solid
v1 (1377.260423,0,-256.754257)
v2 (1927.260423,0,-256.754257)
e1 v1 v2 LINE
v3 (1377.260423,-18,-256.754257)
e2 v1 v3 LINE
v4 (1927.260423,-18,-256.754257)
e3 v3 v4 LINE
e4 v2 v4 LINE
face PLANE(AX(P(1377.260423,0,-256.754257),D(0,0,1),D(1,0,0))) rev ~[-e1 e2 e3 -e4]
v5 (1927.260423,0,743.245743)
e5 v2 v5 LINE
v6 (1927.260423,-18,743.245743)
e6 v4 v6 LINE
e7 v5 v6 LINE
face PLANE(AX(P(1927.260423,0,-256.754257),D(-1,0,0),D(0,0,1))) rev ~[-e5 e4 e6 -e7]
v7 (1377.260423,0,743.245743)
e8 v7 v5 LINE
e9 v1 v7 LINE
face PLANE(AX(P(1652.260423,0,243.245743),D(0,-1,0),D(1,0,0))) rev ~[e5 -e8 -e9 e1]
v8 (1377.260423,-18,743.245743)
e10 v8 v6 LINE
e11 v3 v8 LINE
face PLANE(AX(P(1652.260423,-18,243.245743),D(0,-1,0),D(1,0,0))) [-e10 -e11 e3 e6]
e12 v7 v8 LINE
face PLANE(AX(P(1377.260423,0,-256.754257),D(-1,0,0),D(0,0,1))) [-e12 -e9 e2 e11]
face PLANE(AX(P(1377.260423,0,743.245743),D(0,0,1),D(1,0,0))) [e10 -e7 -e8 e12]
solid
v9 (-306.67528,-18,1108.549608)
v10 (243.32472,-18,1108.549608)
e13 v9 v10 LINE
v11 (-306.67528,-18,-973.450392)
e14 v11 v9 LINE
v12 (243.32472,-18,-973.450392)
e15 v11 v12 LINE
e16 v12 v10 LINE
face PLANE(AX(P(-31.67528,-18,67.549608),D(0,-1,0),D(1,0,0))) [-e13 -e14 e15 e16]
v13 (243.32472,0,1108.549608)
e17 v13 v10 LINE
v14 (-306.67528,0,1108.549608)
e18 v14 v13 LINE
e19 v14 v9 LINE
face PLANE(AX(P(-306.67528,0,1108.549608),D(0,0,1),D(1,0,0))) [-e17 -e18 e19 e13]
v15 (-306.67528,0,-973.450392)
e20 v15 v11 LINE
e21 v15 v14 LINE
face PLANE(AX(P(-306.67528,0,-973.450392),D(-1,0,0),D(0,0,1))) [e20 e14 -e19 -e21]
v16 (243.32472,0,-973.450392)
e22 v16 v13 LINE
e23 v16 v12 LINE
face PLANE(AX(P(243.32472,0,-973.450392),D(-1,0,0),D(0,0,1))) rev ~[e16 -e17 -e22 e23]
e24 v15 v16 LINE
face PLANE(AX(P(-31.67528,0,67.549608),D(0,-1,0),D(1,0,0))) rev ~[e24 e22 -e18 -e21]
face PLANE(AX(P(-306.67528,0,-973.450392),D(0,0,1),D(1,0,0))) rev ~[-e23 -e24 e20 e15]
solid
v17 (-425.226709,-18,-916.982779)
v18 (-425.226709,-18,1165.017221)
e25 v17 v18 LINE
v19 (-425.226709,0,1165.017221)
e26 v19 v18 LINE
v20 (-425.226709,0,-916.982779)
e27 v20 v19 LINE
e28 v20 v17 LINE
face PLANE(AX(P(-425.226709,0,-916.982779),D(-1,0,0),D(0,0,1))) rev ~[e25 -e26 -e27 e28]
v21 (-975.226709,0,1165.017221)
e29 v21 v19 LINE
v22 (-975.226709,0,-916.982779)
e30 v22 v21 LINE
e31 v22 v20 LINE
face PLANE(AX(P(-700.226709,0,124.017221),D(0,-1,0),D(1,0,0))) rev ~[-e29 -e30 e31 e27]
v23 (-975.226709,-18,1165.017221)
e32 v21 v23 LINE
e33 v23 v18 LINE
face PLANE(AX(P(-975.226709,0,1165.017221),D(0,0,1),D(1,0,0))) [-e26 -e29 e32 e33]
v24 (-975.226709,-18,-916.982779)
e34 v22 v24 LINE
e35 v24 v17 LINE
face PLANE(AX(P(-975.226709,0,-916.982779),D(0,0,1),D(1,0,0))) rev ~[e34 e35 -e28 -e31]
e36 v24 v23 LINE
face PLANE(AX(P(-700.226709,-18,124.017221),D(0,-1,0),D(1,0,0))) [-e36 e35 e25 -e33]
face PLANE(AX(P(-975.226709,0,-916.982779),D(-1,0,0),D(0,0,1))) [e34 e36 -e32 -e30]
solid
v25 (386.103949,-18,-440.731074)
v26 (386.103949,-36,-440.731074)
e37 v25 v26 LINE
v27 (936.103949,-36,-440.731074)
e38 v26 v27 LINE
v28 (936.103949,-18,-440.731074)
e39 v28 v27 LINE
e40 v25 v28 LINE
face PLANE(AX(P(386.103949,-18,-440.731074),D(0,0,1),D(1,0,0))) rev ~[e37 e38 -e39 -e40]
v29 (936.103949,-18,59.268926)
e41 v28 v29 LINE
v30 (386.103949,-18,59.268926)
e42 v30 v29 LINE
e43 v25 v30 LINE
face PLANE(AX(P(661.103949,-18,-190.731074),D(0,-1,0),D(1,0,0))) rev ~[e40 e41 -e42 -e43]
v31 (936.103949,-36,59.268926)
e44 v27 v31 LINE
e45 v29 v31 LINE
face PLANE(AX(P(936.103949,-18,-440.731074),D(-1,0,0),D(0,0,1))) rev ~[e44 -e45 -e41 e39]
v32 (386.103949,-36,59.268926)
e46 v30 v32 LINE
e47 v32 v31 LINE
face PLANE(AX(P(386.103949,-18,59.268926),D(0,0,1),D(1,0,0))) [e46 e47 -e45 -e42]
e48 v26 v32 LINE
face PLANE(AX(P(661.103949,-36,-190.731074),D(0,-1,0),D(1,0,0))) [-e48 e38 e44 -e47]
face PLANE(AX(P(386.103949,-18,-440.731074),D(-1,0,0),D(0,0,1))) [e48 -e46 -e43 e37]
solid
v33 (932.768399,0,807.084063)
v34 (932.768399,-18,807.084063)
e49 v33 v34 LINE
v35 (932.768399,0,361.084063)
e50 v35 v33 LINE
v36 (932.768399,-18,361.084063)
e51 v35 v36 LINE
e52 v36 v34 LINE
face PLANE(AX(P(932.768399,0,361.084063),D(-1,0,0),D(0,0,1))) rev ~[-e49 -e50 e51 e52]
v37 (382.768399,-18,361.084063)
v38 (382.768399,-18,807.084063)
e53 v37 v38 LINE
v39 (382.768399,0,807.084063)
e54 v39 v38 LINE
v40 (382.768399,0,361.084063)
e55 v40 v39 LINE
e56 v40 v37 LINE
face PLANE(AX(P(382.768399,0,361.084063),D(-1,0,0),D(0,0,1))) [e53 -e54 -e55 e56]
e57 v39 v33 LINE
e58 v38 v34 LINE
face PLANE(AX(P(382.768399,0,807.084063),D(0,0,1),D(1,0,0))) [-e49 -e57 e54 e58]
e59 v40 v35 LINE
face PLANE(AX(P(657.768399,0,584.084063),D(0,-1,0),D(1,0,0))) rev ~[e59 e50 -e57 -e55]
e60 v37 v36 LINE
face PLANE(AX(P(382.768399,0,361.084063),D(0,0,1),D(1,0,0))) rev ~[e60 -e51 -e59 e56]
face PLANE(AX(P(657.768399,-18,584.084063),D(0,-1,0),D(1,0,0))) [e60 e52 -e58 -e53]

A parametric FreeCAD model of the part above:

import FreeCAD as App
import Part
import Sketcher
from FreeCAD import Vector


def add_polygon(sketch, points):
    """Adds a closed chain of lines whose ends are joined by coincident constraints."""
    first, n = sketch.GeometryCount, len(points)
    for a, b in zip(points, points[1:] + points[:1]):
        sketch.addGeometry(Part.LineSegment(App.Vector(*a, 0), App.Vector(*b, 0)), False)
    for i in range(n):
        sketch.addConstraint(Sketcher.Constraint("Coincident", first + i, 2, first + (i + 1) % n, 1))

doc = App.newDocument("Part")
body = doc.addObject("PartDesign::Body", "Body")

# Sketch on XZ plane
sketch1 = body.newObject("Sketcher::SketchObject", "Sketch")
sketch1.AttachmentSupport = (doc.getObject("XZ_Plane"), [""])
sketch1.MapMode = "FlatFace"
add_polygon(sketch1, [(-306.67528, 1108.549608), (-306.67528, -973.450392), (243.32472, -973.450392), (243.32472, 1108.549608)])  # lines 0-3
sketch1.addConstraint([
    Sketcher.Constraint("Vertical", 0),
    Sketcher.Constraint("Horizontal", 1),
    Sketcher.Constraint("Vertical", 2),
    Sketcher.Constraint("Horizontal", 3),
    Sketcher.Constraint("DistanceX", 1, 1, 1, 2, 550.0),
    Sketcher.Constraint("DistanceY", 0, 2, 0, 1, 2082.0),
    Sketcher.Constraint("DistanceX", 0, 2, -1, 1, 306.67528),
    Sketcher.Constraint("DistanceY", 0, 2, -1, 1, 973.450392),
])
pad1 = body.newObject("PartDesign::Pad", "Pad")
pad1.Profile = sketch1
pad1.Length = 18
body2 = doc.addObject("PartDesign::Body", "Body001")

# Sketch on XZ plane
sketch2 = body2.newObject("Sketcher::SketchObject", "Sketch001")
sketch2.AttachmentSupport = (doc.getObject("XZ_Plane001"), [""])
sketch2.MapMode = "FlatFace"
add_polygon(sketch2, [(-975.226709, 1165.017221), (-975.226709, -916.982779), (-425.226709, -916.982779), (-425.226709, 1165.017221)])  # lines 0-3
sketch2.addConstraint([
    Sketcher.Constraint("Vertical", 0),
    Sketcher.Constraint("Horizontal", 1),
    Sketcher.Constraint("Vertical", 2),
    Sketcher.Constraint("Horizontal", 3),
    Sketcher.Constraint("DistanceX", 1, 1, 1, 2, 550.0),
    Sketcher.Constraint("DistanceY", 0, 2, 0, 1, 2082.0),
    Sketcher.Constraint("DistanceX", 0, 2, -1, 1, 975.226709),
    Sketcher.Constraint("DistanceY", 0, 2, -1, 1, 916.982779),
])
pad2 = body2.newObject("PartDesign::Pad", "Pad001")
pad2.Profile = sketch2
pad2.Length = 18
body3 = doc.addObject("PartDesign::Body", "Body002")

# Sketch on XZ plane
sketch3 = body3.newObject("Sketcher::SketchObject", "Sketch002")
sketch3.AttachmentSupport = (doc.getObject("XZ_Plane002"), [""])
sketch3.MapMode = "FlatFace"
add_polygon(sketch3, [(382.768399, 807.084063), (382.768399, 361.084063), (932.768399, 361.084063), (932.768399, 807.084063)])  # lines 0-3
sketch3.addConstraint([
    Sketcher.Constraint("Vertical", 0),
    Sketcher.Constraint("Horizontal", 1),
    Sketcher.Constraint("Vertical", 2),
    Sketcher.Constraint("Horizontal", 3),
    Sketcher.Constraint("DistanceX", 1, 1, 1, 2, 550.0),
    Sketcher.Constraint("DistanceY", 0, 2, 0, 1, 446.0),
    Sketcher.Constraint("DistanceX", -1, 1, 0, 2, 382.768399),
    Sketcher.Constraint("DistanceY", -1, 1, 0, 2, 361.084063),
])
pad3 = body3.newObject("PartDesign::Pad", "Pad002")
pad3.Profile = sketch3
pad3.Length = 18
body4 = doc.addObject("PartDesign::Body", "Body003")

# Sketch on XZ plane
sketch4 = body4.newObject("Sketcher::SketchObject", "Sketch003")
sketch4.AttachmentSupport = (doc.getObject("XZ_Plane003"), [""])
sketch4.MapMode = "FlatFace"
sketch4.AttachmentOffset = App.Placement(Vector(0, 0, 18), App.Rotation())
add_polygon(sketch4, [(386.103949, 59.268926), (386.103949, -440.731074), (936.103949, -440.731074), (936.103949, 59.268926)])  # lines 0-3
sketch4.addConstraint([
    Sketcher.Constraint("Vertical", 0),
    Sketcher.Constraint("Horizontal", 1),
    Sketcher.Constraint("Vertical", 2),
    Sketcher.Constraint("Horizontal", 3),
    Sketcher.Constraint("DistanceX", 1, 1, 1, 2, 550.0),
    Sketcher.Constraint("DistanceY", 0, 2, 0, 1, 500.0),
    Sketcher.Constraint("DistanceX", -1, 1, 0, 2, 386.103949),
    Sketcher.Constraint("DistanceY", 0, 2, -1, 1, 440.731074),
])
pad4 = body4.newObject("PartDesign::Pad", "Pad003")
pad4.Profile = sketch4
pad4.Length = 18
body5 = doc.addObject("PartDesign::Body", "Body004")

# Sketch on XZ plane
sketch5 = body5.newObject("Sketcher::SketchObject", "Sketch004")
sketch5.AttachmentSupport = (doc.getObject("XZ_Plane004"), [""])
sketch5.MapMode = "FlatFace"
add_polygon(sketch5, [(1377.260423, 743.245743), (1377.260423, -256.754257), (1927.260423, -256.754257), (1927.260423, 743.245743)])  # lines 0-3
sketch5.addConstraint([
    Sketcher.Constraint("Vertical", 0),
    Sketcher.Constraint("Horizontal", 1),
    Sketcher.Constraint("Vertical", 2),
    Sketcher.Constraint("Horizontal", 3),
    Sketcher.Constraint("DistanceX", 1, 1, 1, 2, 550.0),
    Sketcher.Constraint("DistanceY", 0, 2, 0, 1, 1000.0),
    Sketcher.Constraint("DistanceX", -1, 1, 0, 2, 1377.260423),
    Sketcher.Constraint("DistanceY", 0, 2, -1, 1, 256.754257),
])
pad5 = body5.newObject("PartDesign::Pad", "Pad004")
pad5.Profile = sketch5
pad5.Length = 18

doc.recompute()
